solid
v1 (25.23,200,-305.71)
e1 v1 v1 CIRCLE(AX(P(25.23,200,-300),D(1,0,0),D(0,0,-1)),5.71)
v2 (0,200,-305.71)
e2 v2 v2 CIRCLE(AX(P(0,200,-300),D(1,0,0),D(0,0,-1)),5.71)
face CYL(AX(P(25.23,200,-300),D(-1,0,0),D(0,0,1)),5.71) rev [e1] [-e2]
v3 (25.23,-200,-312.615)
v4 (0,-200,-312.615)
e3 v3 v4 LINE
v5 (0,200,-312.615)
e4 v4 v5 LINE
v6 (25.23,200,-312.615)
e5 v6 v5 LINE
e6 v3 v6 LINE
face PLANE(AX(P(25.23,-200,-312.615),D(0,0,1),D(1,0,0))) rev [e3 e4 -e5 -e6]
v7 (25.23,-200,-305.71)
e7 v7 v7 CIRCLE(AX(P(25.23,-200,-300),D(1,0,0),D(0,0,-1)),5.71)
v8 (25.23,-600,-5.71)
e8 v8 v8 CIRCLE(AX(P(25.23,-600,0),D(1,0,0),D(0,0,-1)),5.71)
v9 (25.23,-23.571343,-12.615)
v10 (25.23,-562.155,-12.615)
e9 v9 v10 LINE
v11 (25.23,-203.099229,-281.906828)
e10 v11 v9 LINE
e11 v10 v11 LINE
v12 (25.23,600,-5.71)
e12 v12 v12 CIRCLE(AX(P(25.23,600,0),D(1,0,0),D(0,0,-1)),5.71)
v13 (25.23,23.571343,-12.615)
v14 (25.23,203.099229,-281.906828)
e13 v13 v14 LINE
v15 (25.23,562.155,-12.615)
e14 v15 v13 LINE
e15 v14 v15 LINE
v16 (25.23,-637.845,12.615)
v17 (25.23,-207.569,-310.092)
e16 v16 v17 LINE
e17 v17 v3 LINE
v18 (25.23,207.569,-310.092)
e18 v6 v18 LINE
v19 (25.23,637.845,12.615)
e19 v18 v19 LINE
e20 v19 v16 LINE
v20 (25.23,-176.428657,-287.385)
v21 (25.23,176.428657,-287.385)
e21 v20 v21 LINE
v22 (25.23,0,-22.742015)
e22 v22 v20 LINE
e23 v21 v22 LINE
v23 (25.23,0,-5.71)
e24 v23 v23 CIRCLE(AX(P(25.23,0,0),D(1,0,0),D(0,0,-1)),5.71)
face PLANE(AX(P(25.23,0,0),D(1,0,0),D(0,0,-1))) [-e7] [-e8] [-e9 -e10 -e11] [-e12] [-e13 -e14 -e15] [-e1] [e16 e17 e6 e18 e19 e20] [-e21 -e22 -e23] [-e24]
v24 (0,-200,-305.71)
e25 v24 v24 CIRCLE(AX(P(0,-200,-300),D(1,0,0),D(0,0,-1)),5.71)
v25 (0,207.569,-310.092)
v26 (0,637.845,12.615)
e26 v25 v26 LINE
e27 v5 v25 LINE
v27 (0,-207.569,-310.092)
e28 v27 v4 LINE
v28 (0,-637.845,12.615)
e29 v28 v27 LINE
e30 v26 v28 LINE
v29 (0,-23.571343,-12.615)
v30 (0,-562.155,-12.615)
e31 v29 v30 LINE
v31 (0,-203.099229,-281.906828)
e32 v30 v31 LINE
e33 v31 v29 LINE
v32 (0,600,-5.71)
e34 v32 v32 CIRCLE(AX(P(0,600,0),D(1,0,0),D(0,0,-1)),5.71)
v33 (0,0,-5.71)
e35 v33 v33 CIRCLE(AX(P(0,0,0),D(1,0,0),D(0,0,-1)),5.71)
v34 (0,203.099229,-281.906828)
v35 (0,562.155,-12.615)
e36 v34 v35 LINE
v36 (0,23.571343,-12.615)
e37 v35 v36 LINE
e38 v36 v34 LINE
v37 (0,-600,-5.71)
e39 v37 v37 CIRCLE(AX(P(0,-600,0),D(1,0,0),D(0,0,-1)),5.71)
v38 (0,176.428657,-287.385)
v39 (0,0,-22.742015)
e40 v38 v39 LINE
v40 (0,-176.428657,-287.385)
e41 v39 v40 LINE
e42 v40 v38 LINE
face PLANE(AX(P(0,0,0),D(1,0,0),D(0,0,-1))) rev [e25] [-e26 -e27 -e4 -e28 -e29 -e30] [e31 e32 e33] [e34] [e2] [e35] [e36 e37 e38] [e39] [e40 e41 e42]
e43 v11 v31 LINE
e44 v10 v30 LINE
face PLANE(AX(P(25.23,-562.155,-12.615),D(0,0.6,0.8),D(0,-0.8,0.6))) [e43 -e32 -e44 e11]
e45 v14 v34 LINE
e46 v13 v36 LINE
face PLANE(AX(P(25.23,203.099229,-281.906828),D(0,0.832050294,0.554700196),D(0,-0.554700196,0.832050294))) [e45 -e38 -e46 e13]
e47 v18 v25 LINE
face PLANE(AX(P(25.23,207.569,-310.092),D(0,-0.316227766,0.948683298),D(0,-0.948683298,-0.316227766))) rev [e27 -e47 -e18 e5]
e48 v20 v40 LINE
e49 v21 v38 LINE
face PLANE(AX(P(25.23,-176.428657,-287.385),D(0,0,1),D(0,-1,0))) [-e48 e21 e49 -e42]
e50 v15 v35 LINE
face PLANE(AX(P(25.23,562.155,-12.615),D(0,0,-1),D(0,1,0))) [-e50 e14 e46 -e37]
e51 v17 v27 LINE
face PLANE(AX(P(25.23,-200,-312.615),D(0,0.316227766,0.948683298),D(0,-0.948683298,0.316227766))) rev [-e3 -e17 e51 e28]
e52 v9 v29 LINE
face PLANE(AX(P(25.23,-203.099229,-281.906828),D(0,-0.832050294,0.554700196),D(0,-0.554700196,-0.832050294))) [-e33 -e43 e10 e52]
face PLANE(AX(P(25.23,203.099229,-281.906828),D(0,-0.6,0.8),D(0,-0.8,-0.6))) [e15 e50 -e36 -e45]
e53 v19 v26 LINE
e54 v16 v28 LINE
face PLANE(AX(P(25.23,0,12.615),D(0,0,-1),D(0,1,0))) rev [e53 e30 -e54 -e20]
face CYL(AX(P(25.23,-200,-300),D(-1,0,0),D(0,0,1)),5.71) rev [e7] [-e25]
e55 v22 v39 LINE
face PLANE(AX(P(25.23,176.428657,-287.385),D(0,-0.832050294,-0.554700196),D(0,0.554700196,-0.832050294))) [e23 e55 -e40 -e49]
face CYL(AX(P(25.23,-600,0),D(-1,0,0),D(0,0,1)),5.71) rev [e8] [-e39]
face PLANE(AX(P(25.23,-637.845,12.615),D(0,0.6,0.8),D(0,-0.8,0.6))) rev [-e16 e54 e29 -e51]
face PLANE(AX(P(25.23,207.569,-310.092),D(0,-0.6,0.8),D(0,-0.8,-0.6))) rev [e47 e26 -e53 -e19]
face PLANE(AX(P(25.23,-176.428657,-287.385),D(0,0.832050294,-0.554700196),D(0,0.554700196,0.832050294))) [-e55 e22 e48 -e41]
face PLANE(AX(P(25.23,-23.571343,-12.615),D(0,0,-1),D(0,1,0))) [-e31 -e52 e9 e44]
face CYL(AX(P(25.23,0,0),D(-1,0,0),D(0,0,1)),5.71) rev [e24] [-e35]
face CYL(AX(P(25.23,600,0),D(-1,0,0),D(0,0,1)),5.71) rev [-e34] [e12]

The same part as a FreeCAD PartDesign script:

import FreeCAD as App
import Part
import Sketcher
from FreeCAD import Vector

doc = App.newDocument("Part")
body = doc.addObject("PartDesign::Body", "Body")

sketch1 = body.newObject("Sketcher::SketchObject", "Sketch")
sketch1.AttachmentSupport = (doc.getObject("YZ_Plane"), [""])
sketch1.MapMode = "FlatFace"
sketch1.addGeometry([
    Part.LineSegment(Vector(-637.845, 12.615, 0), Vector(-207.569, -310.092, 0)),
    Part.LineSegment(Vector(-207.569, -310.092, 0), Vector(-200, -312.615, 0)),
    Part.LineSegment(Vector(-200, -312.615, 0), Vector(200, -312.615, 0)),
    Part.LineSegment(Vector(200, -312.615, 0), Vector(207.569, -310.092, 0)),
    Part.LineSegment(Vector(207.569, -310.092, 0), Vector(637.845, 12.615, 0)),
    Part.LineSegment(Vector(637.845, 12.615, 0), Vector(-637.845, 12.615, 0)),
    Part.Circle(Vector(-200, -300, 0), Vector(0, 0, 1), 5.71),
    Part.LineSegment(Vector(0, -22.742015, 0), Vector(176.428657, -287.385, 0)),
    Part.LineSegment(Vector(176.428657, -287.385, 0), Vector(-176.428657, -287.385, 0)),
    Part.LineSegment(Vector(-176.428657, -287.385, 0), Vector(0, -22.742015, 0)),
    Part.Circle(Vector(200, -300, 0), Vector(0, 0, 1), 5.71),
    Part.LineSegment(Vector(-203.099229, -281.906828, 0), Vector(-562.155, -12.615, 0)),
    Part.LineSegment(Vector(-562.155, -12.615, 0), Vector(-23.571343, -12.615, 0)),
    Part.LineSegment(Vector(-23.571343, -12.615, 0), Vector(-203.099229, -281.906828, 0)),
    Part.Circle(Vector(-600, 0, 0), Vector(0, 0, 1), 5.71),
    Part.Circle(Vector(0, 0, 0), Vector(0, 0, 1), 5.71),
    Part.LineSegment(Vector(562.155, -12.615, 0), Vector(203.099229, -281.906828, 0)),
    Part.LineSegment(Vector(203.099229, -281.906828, 0), Vector(23.571343, -12.615, 0)),
    Part.LineSegment(Vector(23.571343, -12.615, 0), Vector(562.155, -12.615, 0)),
    Part.Circle(Vector(600, 0, 0), Vector(0, 0, 1), 5.71),
], False)
sketch1.addConstraint([
    Sketcher.Constraint("Coincident", 0, 2, 1, 1),
    Sketcher.Constraint("Coincident", 1, 2, 2, 1),
    Sketcher.Constraint("Coincident", 2, 2, 3, 1),
    Sketcher.Constraint("Coincident", 3, 2, 4, 1),
    Sketcher.Constraint("Coincident", 4, 2, 5, 1),
    Sketcher.Constraint("Coincident", 5, 2, 0, 1),
    Sketcher.Constraint("Coincident", 7, 2, 8, 1),
    Sketcher.Constraint("Coincident", 8, 2, 9, 1),
    Sketcher.Constraint("Coincident", 9, 2, 7, 1),
    Sketcher.Constraint("Coincident", 11, 2, 12, 1),
    Sketcher.Constraint("Coincident", 12, 2, 13, 1),
    Sketcher.Constraint("Coincident", 13, 2, 11, 1),
    Sketcher.Constraint("Coincident", 16, 2, 17, 1),
    Sketcher.Constraint("Coincident", 17, 2, 18, 1),
    Sketcher.Constraint("Coincident", 18, 2, 16, 1),
    Sketcher.Constraint("Horizontal", 2),
    Sketcher.Constraint("Horizontal", 5),
    Sketcher.Constraint("Horizontal", 8),
    Sketcher.Constraint("Horizontal", 12),
    Sketcher.Constraint("Horizontal", 18),
    Sketcher.Constraint("Coincident", 15, 3, -1, 1),
    Sketcher.Constraint("Equal", 6, 10),
    Sketcher.Constraint("Equal", 10, 14),
    Sketcher.Constraint("Equal", 14, 15),
    Sketcher.Constraint("Equal", 15, 19),
    Sketcher.Constraint("Symmetric", 14, 3, 19, 3, -1, 1),
    Sketcher.Constraint("Symmetric", 6, 3, 10, 3, -2),
    Sketcher.Constraint("Symmetric", 0, 2, 3, 2, -2),
    Sketcher.Constraint("Symmetric", 13, 2, 16, 2, -2),
    Sketcher.Constraint("Symmetric", 12, 2, 17, 2, -2),
    Sketcher.Constraint("PointOnObject", 14, 3, -1),
    Sketcher.Constraint("PointOnObject", 9, 2, -2),
    Sketcher.Constraint("Parallel", 0, 11),
    Sketcher.Constraint("Parallel", 9, 13),
    Sketcher.Constraint("Parallel", 4, 16),
    Sketcher.Constraint("Parallel", 7, 17),
    Sketcher.Constraint("Vertical", 6, 3, 1, 2),
    Sketcher.Constraint("Vertical", 10, 3, 2, 2),
    Sketcher.Constraint("Equal", 12, 18),
    Sketcher.Constraint("Diameter", 6, 11.42),
    Sketcher.Constraint("DistanceX", 2, 1, 2, 2, 400.0),
    Sketcher.Constraint("DistanceY", 6, 3, -1, 1, 300.0),
    Sketcher.Constraint("DistanceX", 14, 3, -1, 1, 600.0),
    Sketcher.Constraint("DistanceY", 1, 2, 11, 2, 300.0),
    Sketcher.Constraint("DistanceX", 12, 2, 7, 2, 200.0),
    Sketcher.Constraint("DistanceX", 5, 2, 5, 1, 1275.69),
    Sketcher.Constraint("DistanceY", 2, 2, 4, 2, 325.23),
    Sketcher.Constraint("DistanceY", 2, 2, 7, 2, 25.23),
    Sketcher.Constraint("DistanceX", 5, 2, 11, 2, 75.69),
    Sketcher.Constraint("Distance", 0, 537.845),
    Sketcher.Constraint("DistanceX", 0, 2, -1, 1, 207.569),
    Sketcher.Constraint("DistanceY", 0, 2, -1, 1, 310.092),
    Sketcher.Constraint("Distance", 13, 323.648499),
    Sketcher.Constraint("DistanceX", 8, 2, 8, 1, 352.857314),
])
pad1 = body.newObject("PartDesign::Pad", "Pad")
pad1.Profile = sketch1
pad1.Length = 25.23

doc.recompute()
